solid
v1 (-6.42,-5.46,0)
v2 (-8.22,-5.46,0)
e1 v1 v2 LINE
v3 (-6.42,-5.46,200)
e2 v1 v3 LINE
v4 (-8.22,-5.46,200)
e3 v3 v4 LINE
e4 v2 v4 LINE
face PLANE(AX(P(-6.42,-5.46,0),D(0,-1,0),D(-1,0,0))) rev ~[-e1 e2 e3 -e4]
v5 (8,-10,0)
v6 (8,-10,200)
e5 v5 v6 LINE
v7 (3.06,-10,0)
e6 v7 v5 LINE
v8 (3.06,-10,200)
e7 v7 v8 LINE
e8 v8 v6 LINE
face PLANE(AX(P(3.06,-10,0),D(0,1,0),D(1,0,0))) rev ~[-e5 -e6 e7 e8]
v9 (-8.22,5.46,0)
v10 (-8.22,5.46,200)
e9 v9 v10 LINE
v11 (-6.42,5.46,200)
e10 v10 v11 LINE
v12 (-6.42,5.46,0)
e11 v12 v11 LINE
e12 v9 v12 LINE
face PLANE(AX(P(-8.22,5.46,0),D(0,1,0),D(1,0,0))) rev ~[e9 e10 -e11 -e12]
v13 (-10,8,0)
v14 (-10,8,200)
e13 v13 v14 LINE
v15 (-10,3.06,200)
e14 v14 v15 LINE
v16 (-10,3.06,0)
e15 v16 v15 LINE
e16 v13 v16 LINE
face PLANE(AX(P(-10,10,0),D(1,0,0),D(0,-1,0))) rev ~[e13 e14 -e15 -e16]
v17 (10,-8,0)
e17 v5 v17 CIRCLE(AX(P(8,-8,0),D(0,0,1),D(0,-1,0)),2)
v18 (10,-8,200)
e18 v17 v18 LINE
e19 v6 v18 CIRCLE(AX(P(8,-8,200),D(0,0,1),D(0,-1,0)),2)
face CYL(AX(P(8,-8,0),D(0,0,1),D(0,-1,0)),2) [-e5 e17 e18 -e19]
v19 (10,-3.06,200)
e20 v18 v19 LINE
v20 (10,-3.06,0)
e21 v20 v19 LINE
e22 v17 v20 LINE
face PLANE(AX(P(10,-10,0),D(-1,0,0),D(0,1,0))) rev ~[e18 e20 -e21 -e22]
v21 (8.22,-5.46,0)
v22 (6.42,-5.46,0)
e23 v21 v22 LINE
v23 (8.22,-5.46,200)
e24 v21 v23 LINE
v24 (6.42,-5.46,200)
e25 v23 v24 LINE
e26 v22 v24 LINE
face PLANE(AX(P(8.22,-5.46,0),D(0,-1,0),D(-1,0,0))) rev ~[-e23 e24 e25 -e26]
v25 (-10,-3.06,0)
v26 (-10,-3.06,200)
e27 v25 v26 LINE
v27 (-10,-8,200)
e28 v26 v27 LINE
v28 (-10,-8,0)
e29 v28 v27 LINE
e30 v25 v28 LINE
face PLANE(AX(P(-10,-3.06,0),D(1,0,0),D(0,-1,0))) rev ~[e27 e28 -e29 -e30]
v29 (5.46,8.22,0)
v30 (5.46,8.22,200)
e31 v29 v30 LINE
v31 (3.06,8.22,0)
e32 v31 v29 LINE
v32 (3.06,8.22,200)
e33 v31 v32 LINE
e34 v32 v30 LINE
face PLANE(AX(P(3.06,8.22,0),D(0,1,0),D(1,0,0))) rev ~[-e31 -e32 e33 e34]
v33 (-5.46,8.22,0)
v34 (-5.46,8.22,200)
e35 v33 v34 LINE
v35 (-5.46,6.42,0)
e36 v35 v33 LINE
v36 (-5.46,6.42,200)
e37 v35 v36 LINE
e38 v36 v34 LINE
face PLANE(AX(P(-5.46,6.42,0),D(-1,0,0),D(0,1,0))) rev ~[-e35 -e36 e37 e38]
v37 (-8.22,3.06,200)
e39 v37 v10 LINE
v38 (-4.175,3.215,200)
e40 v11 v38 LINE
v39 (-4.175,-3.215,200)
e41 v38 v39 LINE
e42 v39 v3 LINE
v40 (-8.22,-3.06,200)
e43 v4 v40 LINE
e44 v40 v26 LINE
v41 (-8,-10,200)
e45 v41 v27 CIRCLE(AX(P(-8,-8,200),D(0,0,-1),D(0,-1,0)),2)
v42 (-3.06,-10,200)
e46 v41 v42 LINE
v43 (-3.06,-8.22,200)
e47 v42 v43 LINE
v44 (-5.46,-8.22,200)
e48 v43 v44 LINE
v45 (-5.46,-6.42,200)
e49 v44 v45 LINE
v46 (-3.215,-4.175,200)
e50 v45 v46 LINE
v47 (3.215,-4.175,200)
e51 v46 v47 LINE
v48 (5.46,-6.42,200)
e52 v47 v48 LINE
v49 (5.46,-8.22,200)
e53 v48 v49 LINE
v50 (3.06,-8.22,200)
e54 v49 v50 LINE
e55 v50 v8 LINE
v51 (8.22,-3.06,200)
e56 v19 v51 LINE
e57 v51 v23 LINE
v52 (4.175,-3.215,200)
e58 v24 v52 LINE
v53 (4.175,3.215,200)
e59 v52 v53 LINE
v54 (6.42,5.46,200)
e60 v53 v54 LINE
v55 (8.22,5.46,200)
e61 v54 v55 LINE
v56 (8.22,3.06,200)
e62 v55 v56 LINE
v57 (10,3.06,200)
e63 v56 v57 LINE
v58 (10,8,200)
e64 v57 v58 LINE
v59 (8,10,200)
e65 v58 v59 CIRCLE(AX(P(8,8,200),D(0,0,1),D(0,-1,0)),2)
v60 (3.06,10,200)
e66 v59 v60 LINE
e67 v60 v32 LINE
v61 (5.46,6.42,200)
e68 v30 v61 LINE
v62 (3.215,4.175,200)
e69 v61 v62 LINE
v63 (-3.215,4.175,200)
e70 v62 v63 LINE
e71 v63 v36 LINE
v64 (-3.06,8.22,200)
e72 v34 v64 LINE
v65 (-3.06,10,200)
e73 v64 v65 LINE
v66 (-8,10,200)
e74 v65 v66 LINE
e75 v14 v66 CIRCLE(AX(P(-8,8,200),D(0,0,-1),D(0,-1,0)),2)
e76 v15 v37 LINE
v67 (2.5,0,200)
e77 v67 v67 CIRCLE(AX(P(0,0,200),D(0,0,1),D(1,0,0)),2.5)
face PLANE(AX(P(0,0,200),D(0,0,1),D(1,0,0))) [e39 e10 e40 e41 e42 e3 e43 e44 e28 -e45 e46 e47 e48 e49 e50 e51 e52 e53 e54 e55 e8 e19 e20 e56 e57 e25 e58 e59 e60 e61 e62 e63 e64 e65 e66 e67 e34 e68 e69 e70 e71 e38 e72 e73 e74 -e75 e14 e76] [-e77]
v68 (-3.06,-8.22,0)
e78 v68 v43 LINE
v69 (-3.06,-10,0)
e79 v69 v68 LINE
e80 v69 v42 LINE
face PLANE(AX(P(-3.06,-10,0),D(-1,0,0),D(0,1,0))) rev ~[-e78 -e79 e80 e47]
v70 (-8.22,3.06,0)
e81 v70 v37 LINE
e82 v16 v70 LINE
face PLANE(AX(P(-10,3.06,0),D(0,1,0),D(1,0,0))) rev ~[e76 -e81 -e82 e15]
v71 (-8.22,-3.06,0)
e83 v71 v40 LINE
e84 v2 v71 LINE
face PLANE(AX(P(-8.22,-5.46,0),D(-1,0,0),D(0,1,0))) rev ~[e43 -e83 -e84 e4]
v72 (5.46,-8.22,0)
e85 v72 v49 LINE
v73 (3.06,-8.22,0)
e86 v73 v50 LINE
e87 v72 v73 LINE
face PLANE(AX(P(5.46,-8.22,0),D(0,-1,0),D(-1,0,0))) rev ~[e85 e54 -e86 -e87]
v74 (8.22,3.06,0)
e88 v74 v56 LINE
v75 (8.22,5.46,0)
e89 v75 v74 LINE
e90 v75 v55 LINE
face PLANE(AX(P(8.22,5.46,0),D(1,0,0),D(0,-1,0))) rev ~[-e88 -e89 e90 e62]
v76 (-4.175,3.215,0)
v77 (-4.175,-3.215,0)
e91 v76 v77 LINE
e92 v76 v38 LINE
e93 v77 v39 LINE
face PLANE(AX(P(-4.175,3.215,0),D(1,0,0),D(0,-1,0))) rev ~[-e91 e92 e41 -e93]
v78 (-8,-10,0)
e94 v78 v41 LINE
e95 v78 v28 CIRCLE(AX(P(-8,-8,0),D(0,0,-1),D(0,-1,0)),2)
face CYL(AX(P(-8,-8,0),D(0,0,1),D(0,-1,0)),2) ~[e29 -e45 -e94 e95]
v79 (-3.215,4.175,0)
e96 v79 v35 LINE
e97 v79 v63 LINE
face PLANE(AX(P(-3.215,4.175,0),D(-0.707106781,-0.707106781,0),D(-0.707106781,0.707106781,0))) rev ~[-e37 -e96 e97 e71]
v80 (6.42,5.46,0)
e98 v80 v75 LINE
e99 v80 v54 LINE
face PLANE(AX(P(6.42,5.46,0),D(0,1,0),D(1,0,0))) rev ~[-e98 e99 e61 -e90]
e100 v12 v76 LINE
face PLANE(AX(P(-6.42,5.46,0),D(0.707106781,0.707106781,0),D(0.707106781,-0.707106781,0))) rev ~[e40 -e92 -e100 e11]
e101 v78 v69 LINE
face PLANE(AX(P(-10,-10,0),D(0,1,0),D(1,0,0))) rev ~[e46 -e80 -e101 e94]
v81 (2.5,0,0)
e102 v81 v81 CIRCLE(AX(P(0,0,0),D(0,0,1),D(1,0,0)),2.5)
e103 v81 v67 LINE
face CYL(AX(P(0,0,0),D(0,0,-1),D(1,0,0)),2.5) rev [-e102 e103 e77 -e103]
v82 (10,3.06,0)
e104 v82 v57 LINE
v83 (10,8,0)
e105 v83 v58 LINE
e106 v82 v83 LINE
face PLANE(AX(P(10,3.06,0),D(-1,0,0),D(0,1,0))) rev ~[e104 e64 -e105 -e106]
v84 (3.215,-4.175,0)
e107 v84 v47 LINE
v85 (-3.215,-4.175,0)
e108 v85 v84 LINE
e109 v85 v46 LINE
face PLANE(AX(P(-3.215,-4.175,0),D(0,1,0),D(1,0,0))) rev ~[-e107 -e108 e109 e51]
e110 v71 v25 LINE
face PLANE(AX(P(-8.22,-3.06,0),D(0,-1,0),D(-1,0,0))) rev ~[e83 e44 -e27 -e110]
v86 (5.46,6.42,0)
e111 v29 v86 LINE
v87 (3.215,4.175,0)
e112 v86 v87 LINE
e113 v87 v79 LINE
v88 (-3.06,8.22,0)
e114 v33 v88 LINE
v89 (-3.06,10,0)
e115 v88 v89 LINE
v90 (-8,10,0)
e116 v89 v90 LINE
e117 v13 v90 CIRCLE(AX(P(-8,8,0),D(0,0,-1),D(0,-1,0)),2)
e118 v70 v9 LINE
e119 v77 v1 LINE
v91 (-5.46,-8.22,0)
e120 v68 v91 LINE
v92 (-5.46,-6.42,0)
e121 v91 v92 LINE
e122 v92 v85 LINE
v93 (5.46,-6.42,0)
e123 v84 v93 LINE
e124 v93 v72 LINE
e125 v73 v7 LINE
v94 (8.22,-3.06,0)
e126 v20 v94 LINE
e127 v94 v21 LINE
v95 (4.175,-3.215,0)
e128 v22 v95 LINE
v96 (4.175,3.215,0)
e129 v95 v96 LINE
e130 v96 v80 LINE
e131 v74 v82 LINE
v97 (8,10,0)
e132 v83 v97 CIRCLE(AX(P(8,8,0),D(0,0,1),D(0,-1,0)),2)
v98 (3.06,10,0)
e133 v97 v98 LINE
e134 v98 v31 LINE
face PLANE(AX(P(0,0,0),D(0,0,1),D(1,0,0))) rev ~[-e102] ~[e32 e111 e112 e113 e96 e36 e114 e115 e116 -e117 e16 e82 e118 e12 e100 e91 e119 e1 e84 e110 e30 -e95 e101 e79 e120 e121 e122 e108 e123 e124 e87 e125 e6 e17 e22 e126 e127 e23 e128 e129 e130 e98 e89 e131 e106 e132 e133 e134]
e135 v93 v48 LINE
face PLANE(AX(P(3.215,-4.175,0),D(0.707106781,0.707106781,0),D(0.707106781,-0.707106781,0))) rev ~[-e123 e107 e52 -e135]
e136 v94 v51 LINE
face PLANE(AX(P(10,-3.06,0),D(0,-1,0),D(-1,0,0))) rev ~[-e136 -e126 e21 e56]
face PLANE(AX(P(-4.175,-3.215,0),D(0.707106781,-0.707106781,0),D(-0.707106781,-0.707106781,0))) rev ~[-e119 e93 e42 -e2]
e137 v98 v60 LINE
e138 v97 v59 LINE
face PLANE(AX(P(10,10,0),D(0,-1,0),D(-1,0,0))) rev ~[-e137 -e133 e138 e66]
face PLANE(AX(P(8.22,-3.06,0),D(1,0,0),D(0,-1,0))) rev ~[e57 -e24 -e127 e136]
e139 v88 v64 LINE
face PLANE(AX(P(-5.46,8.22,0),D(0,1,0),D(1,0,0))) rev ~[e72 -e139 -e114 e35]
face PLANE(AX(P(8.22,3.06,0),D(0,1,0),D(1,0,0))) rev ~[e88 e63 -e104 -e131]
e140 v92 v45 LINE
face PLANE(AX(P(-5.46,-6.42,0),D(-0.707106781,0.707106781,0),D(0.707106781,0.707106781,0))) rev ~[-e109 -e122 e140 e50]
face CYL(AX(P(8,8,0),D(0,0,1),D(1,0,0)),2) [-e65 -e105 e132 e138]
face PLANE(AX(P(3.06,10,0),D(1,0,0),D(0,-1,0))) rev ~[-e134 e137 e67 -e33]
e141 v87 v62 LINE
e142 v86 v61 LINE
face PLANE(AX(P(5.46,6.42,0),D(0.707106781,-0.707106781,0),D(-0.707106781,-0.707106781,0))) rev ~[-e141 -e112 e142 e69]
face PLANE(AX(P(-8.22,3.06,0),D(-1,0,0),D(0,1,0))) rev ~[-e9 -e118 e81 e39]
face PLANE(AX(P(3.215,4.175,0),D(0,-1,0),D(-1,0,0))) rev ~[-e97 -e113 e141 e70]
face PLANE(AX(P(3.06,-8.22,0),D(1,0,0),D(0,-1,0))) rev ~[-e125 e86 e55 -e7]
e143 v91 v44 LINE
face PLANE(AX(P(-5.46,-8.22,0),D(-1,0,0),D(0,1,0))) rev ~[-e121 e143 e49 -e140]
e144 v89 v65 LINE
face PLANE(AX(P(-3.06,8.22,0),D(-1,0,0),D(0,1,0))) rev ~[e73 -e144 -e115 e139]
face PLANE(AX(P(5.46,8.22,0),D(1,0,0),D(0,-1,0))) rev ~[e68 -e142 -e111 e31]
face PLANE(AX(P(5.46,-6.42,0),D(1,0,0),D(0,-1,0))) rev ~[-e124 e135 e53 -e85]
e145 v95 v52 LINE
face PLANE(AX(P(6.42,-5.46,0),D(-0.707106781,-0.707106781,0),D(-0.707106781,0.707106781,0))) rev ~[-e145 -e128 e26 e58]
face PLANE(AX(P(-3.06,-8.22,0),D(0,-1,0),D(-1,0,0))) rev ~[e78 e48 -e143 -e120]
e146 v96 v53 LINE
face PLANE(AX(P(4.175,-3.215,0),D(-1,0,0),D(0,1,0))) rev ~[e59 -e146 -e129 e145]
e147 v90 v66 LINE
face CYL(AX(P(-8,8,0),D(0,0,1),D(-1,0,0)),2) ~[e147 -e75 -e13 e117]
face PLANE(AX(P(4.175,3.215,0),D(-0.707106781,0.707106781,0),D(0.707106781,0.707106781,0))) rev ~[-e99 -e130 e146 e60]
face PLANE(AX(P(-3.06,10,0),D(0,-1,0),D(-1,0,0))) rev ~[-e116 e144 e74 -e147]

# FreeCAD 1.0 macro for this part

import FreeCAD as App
import Part
import Sketcher


def edges_at(feature, points):
    """Names of the edges that pass closest to the given points."""
    edges = feature.Shape.Edges
    near = lambda p: min(range(len(edges)), key=lambda i: edges[i].distToShape(Part.Vertex(*p))[0])
    return sorted({f"Edge{near(p) + 1}" for p in points})


def add_polygon(sketch, points):
    """Adds a closed chain of lines whose ends are joined by coincident constraints."""
    first, n = sketch.GeometryCount, len(points)
    for a, b in zip(points, points[1:] + points[:1]):
        sketch.addGeometry(Part.LineSegment(App.Vector(*a, 0), App.Vector(*b, 0)), False)
    for i in range(n):
        sketch.addConstraint(Sketcher.Constraint("Coincident", first + i, 2, first + (i + 1) % n, 1))

doc = App.newDocument("Part")
body = doc.addObject("PartDesign::Body", "Body")

# Sketch on XY plane
sketch1 = body.newObject("Sketcher::SketchObject", "Sketch")
sketch1.AttachmentSupport = (doc.getObject("XY_Plane"), [""])
sketch1.MapMode = "FlatFace"
add_polygon(sketch1, [(-5.46, -6.42), (-3.215, -4.175), (3.215, -4.175), (5.46, -6.42), (5.46, -8.22), (3.06, -8.22), (3.06, -10), (10, -10), (10, -3.06), (8.22, -3.06), (8.22, -5.46), (6.42, -5.46), (4.175, -3.215), (4.175, 3.215), (6.42, 5.46), (8.22, 5.46), (8.22, 3.06), (10, 3.06), (10, 10), (3.06, 10), (3.06, 8.22), (5.46, 8.22), (5.46, 6.42), (3.215, 4.175), (-3.215, 4.175), (-5.46, 6.42), (-5.46, 8.22), (-3.06, 8.22), (-3.06, 10), (-10, 10), (-10, 3.06), (-8.22, 3.06), (-8.22, 5.46), (-6.42, 5.46), (-4.175, 3.215), (-4.175, -3.215), (-6.42, -5.46), (-8.22, -5.46), (-8.22, -3.06), (-10, -3.06), (-10, -10), (-3.06, -10), (-3.06, -8.22), (-5.46, -8.22)])  # lines 0-43
sketch1.addGeometry(Part.Circle(App.Vector(0, 0, 0), App.Vector(0, 0, 1), 2.5), False)  # 44
sketch1.addConstraint([
    Sketcher.Constraint("Horizontal", 1),
    Sketcher.Constraint("Vertical", 3),
    Sketcher.Constraint("Horizontal", 4),
    Sketcher.Constraint("Vertical", 5),
    Sketcher.Constraint("Horizontal", 6),
    Sketcher.Constraint("Vertical", 7),
    Sketcher.Constraint("Horizontal", 8),
    Sketcher.Constraint("Vertical", 9),
    Sketcher.Constraint("Horizontal", 10),
    Sketcher.Constraint("Vertical", 12),
    Sketcher.Constraint("Horizontal", 14),
    Sketcher.Constraint("Vertical", 15),
    Sketcher.Constraint("Horizontal", 16),
    Sketcher.Constraint("Vertical", 17),
    Sketcher.Constraint("Horizontal", 18),
    Sketcher.Constraint("Vertical", 19),
    Sketcher.Constraint("Horizontal", 20),
    Sketcher.Constraint("Vertical", 21),
    Sketcher.Constraint("Horizontal", 23),
    Sketcher.Constraint("Vertical", 25),
    Sketcher.Constraint("Horizontal", 26),
    Sketcher.Constraint("Vertical", 27),
    Sketcher.Constraint("Horizontal", 28),
    Sketcher.Constraint("Vertical", 29),
    Sketcher.Constraint("Horizontal", 30),
    Sketcher.Constraint("Vertical", 31),
    Sketcher.Constraint("Horizontal", 32),
    Sketcher.Constraint("Vertical", 34),
    Sketcher.Constraint("Horizontal", 36),
    Sketcher.Constraint("Vertical", 37),
    Sketcher.Constraint("Horizontal", 38),
    Sketcher.Constraint("Vertical", 39),
    Sketcher.Constraint("Horizontal", 40),
    Sketcher.Constraint("Vertical", 41),
    Sketcher.Constraint("Horizontal", 42),
    Sketcher.Constraint("Vertical", 43),
    Sketcher.Constraint("Coincident", 44, 3, -1, 1),
    Sketcher.Constraint("Symmetric", 0, 2, 22, 2, -1, 1),
    Sketcher.Constraint("Symmetric", 2, 2, 24, 2, -1, 1),
    Sketcher.Constraint("Symmetric", 4, 2, 26, 2, -1, 1),
    Sketcher.Constraint("Symmetric", 6, 2, 28, 2, -1, 1),
    Sketcher.Constraint("Symmetric", 8, 2, 30, 2, -1, 1),
    Sketcher.Constraint("Symmetric", 10, 2, 32, 2, -1, 1),
    Sketcher.Constraint("Symmetric", 11, 2, 33, 2, -1, 1),
    Sketcher.Constraint("Symmetric", 13, 2, 35, 2, -1, 1),
    Sketcher.Constraint("Symmetric", 15, 2, 37, 2, -1, 1),
    Sketcher.Constraint("Symmetric", 17, 2, 39, 2, -1, 1),
    Sketcher.Constraint("Symmetric", 19, 2, 41, 2, -1, 1),
    Sketcher.Constraint("Symmetric", 21, 2, 43, 2, -1, 1),
    Sketcher.Constraint("Symmetric", 21, 2, 24, 2, -2),
    Sketcher.Constraint("Symmetric", 19, 2, 26, 2, -2),
    Sketcher.Constraint("Symmetric", 17, 2, 28, 2, -2),
    Sketcher.Constraint("Symmetric", 15, 2, 30, 2, -2),
    Sketcher.Constraint("Symmetric", 13, 2, 32, 2, -2),
    Sketcher.Constraint("Perpendicular", 0, 2),
    Sketcher.Constraint("Parallel", 2, 11),
    Sketcher.Constraint("Perpendicular", 11, 13),
    Sketcher.Constraint("Perpendicular", 22, 24),
    Sketcher.Constraint("Perpendicular", 33, 35),
    Sketcher.Constraint("Horizontal", 12, 2, 33, 2),
    Sketcher.Constraint("Equal", 36, 3),
    Sketcher.Constraint("Equal", 38, 5),
    Sketcher.Constraint("Equal", 40, 7),
    Sketcher.Constraint("Equal", 42, 9),
    Sketcher.Constraint("Equal", 23, 12),
    Sketcher.Constraint("Equal", 2, 11),
    Sketcher.Constraint("Diameter", 44, 5.0),
    Sketcher.Constraint("DistanceX", 4, 2, 4, 1, 2.4),
    Sketcher.Constraint("DistanceX", 10, 2, 10, 1, 1.8),
    Sketcher.Constraint("DistanceY", 5, 2, -1, 1, 10.0),
    Sketcher.Constraint("DistanceX", 1, 1, 1, 2, 6.43),
    Sketcher.Constraint("DistanceX", 6, 1, 6, 2, 6.94),
    Sketcher.Constraint("DistanceX", 8, 2, 8, 1, 1.78),
])
pad1 = body.newObject("PartDesign::Pad", "Pad")
pad1.Profile = sketch1
pad1.Length = 200
doc.recompute()

fillet = body.newObject("PartDesign::Fillet", "Fillet")
fillet.Base = (pad1, edges_at(pad1, [
    (10, -10, 100),
    (-10, -10, 100),
    (-10, 10, 100),
    (10, 10, 100),
]))
fillet.Radius = 2

doc.recompute()
